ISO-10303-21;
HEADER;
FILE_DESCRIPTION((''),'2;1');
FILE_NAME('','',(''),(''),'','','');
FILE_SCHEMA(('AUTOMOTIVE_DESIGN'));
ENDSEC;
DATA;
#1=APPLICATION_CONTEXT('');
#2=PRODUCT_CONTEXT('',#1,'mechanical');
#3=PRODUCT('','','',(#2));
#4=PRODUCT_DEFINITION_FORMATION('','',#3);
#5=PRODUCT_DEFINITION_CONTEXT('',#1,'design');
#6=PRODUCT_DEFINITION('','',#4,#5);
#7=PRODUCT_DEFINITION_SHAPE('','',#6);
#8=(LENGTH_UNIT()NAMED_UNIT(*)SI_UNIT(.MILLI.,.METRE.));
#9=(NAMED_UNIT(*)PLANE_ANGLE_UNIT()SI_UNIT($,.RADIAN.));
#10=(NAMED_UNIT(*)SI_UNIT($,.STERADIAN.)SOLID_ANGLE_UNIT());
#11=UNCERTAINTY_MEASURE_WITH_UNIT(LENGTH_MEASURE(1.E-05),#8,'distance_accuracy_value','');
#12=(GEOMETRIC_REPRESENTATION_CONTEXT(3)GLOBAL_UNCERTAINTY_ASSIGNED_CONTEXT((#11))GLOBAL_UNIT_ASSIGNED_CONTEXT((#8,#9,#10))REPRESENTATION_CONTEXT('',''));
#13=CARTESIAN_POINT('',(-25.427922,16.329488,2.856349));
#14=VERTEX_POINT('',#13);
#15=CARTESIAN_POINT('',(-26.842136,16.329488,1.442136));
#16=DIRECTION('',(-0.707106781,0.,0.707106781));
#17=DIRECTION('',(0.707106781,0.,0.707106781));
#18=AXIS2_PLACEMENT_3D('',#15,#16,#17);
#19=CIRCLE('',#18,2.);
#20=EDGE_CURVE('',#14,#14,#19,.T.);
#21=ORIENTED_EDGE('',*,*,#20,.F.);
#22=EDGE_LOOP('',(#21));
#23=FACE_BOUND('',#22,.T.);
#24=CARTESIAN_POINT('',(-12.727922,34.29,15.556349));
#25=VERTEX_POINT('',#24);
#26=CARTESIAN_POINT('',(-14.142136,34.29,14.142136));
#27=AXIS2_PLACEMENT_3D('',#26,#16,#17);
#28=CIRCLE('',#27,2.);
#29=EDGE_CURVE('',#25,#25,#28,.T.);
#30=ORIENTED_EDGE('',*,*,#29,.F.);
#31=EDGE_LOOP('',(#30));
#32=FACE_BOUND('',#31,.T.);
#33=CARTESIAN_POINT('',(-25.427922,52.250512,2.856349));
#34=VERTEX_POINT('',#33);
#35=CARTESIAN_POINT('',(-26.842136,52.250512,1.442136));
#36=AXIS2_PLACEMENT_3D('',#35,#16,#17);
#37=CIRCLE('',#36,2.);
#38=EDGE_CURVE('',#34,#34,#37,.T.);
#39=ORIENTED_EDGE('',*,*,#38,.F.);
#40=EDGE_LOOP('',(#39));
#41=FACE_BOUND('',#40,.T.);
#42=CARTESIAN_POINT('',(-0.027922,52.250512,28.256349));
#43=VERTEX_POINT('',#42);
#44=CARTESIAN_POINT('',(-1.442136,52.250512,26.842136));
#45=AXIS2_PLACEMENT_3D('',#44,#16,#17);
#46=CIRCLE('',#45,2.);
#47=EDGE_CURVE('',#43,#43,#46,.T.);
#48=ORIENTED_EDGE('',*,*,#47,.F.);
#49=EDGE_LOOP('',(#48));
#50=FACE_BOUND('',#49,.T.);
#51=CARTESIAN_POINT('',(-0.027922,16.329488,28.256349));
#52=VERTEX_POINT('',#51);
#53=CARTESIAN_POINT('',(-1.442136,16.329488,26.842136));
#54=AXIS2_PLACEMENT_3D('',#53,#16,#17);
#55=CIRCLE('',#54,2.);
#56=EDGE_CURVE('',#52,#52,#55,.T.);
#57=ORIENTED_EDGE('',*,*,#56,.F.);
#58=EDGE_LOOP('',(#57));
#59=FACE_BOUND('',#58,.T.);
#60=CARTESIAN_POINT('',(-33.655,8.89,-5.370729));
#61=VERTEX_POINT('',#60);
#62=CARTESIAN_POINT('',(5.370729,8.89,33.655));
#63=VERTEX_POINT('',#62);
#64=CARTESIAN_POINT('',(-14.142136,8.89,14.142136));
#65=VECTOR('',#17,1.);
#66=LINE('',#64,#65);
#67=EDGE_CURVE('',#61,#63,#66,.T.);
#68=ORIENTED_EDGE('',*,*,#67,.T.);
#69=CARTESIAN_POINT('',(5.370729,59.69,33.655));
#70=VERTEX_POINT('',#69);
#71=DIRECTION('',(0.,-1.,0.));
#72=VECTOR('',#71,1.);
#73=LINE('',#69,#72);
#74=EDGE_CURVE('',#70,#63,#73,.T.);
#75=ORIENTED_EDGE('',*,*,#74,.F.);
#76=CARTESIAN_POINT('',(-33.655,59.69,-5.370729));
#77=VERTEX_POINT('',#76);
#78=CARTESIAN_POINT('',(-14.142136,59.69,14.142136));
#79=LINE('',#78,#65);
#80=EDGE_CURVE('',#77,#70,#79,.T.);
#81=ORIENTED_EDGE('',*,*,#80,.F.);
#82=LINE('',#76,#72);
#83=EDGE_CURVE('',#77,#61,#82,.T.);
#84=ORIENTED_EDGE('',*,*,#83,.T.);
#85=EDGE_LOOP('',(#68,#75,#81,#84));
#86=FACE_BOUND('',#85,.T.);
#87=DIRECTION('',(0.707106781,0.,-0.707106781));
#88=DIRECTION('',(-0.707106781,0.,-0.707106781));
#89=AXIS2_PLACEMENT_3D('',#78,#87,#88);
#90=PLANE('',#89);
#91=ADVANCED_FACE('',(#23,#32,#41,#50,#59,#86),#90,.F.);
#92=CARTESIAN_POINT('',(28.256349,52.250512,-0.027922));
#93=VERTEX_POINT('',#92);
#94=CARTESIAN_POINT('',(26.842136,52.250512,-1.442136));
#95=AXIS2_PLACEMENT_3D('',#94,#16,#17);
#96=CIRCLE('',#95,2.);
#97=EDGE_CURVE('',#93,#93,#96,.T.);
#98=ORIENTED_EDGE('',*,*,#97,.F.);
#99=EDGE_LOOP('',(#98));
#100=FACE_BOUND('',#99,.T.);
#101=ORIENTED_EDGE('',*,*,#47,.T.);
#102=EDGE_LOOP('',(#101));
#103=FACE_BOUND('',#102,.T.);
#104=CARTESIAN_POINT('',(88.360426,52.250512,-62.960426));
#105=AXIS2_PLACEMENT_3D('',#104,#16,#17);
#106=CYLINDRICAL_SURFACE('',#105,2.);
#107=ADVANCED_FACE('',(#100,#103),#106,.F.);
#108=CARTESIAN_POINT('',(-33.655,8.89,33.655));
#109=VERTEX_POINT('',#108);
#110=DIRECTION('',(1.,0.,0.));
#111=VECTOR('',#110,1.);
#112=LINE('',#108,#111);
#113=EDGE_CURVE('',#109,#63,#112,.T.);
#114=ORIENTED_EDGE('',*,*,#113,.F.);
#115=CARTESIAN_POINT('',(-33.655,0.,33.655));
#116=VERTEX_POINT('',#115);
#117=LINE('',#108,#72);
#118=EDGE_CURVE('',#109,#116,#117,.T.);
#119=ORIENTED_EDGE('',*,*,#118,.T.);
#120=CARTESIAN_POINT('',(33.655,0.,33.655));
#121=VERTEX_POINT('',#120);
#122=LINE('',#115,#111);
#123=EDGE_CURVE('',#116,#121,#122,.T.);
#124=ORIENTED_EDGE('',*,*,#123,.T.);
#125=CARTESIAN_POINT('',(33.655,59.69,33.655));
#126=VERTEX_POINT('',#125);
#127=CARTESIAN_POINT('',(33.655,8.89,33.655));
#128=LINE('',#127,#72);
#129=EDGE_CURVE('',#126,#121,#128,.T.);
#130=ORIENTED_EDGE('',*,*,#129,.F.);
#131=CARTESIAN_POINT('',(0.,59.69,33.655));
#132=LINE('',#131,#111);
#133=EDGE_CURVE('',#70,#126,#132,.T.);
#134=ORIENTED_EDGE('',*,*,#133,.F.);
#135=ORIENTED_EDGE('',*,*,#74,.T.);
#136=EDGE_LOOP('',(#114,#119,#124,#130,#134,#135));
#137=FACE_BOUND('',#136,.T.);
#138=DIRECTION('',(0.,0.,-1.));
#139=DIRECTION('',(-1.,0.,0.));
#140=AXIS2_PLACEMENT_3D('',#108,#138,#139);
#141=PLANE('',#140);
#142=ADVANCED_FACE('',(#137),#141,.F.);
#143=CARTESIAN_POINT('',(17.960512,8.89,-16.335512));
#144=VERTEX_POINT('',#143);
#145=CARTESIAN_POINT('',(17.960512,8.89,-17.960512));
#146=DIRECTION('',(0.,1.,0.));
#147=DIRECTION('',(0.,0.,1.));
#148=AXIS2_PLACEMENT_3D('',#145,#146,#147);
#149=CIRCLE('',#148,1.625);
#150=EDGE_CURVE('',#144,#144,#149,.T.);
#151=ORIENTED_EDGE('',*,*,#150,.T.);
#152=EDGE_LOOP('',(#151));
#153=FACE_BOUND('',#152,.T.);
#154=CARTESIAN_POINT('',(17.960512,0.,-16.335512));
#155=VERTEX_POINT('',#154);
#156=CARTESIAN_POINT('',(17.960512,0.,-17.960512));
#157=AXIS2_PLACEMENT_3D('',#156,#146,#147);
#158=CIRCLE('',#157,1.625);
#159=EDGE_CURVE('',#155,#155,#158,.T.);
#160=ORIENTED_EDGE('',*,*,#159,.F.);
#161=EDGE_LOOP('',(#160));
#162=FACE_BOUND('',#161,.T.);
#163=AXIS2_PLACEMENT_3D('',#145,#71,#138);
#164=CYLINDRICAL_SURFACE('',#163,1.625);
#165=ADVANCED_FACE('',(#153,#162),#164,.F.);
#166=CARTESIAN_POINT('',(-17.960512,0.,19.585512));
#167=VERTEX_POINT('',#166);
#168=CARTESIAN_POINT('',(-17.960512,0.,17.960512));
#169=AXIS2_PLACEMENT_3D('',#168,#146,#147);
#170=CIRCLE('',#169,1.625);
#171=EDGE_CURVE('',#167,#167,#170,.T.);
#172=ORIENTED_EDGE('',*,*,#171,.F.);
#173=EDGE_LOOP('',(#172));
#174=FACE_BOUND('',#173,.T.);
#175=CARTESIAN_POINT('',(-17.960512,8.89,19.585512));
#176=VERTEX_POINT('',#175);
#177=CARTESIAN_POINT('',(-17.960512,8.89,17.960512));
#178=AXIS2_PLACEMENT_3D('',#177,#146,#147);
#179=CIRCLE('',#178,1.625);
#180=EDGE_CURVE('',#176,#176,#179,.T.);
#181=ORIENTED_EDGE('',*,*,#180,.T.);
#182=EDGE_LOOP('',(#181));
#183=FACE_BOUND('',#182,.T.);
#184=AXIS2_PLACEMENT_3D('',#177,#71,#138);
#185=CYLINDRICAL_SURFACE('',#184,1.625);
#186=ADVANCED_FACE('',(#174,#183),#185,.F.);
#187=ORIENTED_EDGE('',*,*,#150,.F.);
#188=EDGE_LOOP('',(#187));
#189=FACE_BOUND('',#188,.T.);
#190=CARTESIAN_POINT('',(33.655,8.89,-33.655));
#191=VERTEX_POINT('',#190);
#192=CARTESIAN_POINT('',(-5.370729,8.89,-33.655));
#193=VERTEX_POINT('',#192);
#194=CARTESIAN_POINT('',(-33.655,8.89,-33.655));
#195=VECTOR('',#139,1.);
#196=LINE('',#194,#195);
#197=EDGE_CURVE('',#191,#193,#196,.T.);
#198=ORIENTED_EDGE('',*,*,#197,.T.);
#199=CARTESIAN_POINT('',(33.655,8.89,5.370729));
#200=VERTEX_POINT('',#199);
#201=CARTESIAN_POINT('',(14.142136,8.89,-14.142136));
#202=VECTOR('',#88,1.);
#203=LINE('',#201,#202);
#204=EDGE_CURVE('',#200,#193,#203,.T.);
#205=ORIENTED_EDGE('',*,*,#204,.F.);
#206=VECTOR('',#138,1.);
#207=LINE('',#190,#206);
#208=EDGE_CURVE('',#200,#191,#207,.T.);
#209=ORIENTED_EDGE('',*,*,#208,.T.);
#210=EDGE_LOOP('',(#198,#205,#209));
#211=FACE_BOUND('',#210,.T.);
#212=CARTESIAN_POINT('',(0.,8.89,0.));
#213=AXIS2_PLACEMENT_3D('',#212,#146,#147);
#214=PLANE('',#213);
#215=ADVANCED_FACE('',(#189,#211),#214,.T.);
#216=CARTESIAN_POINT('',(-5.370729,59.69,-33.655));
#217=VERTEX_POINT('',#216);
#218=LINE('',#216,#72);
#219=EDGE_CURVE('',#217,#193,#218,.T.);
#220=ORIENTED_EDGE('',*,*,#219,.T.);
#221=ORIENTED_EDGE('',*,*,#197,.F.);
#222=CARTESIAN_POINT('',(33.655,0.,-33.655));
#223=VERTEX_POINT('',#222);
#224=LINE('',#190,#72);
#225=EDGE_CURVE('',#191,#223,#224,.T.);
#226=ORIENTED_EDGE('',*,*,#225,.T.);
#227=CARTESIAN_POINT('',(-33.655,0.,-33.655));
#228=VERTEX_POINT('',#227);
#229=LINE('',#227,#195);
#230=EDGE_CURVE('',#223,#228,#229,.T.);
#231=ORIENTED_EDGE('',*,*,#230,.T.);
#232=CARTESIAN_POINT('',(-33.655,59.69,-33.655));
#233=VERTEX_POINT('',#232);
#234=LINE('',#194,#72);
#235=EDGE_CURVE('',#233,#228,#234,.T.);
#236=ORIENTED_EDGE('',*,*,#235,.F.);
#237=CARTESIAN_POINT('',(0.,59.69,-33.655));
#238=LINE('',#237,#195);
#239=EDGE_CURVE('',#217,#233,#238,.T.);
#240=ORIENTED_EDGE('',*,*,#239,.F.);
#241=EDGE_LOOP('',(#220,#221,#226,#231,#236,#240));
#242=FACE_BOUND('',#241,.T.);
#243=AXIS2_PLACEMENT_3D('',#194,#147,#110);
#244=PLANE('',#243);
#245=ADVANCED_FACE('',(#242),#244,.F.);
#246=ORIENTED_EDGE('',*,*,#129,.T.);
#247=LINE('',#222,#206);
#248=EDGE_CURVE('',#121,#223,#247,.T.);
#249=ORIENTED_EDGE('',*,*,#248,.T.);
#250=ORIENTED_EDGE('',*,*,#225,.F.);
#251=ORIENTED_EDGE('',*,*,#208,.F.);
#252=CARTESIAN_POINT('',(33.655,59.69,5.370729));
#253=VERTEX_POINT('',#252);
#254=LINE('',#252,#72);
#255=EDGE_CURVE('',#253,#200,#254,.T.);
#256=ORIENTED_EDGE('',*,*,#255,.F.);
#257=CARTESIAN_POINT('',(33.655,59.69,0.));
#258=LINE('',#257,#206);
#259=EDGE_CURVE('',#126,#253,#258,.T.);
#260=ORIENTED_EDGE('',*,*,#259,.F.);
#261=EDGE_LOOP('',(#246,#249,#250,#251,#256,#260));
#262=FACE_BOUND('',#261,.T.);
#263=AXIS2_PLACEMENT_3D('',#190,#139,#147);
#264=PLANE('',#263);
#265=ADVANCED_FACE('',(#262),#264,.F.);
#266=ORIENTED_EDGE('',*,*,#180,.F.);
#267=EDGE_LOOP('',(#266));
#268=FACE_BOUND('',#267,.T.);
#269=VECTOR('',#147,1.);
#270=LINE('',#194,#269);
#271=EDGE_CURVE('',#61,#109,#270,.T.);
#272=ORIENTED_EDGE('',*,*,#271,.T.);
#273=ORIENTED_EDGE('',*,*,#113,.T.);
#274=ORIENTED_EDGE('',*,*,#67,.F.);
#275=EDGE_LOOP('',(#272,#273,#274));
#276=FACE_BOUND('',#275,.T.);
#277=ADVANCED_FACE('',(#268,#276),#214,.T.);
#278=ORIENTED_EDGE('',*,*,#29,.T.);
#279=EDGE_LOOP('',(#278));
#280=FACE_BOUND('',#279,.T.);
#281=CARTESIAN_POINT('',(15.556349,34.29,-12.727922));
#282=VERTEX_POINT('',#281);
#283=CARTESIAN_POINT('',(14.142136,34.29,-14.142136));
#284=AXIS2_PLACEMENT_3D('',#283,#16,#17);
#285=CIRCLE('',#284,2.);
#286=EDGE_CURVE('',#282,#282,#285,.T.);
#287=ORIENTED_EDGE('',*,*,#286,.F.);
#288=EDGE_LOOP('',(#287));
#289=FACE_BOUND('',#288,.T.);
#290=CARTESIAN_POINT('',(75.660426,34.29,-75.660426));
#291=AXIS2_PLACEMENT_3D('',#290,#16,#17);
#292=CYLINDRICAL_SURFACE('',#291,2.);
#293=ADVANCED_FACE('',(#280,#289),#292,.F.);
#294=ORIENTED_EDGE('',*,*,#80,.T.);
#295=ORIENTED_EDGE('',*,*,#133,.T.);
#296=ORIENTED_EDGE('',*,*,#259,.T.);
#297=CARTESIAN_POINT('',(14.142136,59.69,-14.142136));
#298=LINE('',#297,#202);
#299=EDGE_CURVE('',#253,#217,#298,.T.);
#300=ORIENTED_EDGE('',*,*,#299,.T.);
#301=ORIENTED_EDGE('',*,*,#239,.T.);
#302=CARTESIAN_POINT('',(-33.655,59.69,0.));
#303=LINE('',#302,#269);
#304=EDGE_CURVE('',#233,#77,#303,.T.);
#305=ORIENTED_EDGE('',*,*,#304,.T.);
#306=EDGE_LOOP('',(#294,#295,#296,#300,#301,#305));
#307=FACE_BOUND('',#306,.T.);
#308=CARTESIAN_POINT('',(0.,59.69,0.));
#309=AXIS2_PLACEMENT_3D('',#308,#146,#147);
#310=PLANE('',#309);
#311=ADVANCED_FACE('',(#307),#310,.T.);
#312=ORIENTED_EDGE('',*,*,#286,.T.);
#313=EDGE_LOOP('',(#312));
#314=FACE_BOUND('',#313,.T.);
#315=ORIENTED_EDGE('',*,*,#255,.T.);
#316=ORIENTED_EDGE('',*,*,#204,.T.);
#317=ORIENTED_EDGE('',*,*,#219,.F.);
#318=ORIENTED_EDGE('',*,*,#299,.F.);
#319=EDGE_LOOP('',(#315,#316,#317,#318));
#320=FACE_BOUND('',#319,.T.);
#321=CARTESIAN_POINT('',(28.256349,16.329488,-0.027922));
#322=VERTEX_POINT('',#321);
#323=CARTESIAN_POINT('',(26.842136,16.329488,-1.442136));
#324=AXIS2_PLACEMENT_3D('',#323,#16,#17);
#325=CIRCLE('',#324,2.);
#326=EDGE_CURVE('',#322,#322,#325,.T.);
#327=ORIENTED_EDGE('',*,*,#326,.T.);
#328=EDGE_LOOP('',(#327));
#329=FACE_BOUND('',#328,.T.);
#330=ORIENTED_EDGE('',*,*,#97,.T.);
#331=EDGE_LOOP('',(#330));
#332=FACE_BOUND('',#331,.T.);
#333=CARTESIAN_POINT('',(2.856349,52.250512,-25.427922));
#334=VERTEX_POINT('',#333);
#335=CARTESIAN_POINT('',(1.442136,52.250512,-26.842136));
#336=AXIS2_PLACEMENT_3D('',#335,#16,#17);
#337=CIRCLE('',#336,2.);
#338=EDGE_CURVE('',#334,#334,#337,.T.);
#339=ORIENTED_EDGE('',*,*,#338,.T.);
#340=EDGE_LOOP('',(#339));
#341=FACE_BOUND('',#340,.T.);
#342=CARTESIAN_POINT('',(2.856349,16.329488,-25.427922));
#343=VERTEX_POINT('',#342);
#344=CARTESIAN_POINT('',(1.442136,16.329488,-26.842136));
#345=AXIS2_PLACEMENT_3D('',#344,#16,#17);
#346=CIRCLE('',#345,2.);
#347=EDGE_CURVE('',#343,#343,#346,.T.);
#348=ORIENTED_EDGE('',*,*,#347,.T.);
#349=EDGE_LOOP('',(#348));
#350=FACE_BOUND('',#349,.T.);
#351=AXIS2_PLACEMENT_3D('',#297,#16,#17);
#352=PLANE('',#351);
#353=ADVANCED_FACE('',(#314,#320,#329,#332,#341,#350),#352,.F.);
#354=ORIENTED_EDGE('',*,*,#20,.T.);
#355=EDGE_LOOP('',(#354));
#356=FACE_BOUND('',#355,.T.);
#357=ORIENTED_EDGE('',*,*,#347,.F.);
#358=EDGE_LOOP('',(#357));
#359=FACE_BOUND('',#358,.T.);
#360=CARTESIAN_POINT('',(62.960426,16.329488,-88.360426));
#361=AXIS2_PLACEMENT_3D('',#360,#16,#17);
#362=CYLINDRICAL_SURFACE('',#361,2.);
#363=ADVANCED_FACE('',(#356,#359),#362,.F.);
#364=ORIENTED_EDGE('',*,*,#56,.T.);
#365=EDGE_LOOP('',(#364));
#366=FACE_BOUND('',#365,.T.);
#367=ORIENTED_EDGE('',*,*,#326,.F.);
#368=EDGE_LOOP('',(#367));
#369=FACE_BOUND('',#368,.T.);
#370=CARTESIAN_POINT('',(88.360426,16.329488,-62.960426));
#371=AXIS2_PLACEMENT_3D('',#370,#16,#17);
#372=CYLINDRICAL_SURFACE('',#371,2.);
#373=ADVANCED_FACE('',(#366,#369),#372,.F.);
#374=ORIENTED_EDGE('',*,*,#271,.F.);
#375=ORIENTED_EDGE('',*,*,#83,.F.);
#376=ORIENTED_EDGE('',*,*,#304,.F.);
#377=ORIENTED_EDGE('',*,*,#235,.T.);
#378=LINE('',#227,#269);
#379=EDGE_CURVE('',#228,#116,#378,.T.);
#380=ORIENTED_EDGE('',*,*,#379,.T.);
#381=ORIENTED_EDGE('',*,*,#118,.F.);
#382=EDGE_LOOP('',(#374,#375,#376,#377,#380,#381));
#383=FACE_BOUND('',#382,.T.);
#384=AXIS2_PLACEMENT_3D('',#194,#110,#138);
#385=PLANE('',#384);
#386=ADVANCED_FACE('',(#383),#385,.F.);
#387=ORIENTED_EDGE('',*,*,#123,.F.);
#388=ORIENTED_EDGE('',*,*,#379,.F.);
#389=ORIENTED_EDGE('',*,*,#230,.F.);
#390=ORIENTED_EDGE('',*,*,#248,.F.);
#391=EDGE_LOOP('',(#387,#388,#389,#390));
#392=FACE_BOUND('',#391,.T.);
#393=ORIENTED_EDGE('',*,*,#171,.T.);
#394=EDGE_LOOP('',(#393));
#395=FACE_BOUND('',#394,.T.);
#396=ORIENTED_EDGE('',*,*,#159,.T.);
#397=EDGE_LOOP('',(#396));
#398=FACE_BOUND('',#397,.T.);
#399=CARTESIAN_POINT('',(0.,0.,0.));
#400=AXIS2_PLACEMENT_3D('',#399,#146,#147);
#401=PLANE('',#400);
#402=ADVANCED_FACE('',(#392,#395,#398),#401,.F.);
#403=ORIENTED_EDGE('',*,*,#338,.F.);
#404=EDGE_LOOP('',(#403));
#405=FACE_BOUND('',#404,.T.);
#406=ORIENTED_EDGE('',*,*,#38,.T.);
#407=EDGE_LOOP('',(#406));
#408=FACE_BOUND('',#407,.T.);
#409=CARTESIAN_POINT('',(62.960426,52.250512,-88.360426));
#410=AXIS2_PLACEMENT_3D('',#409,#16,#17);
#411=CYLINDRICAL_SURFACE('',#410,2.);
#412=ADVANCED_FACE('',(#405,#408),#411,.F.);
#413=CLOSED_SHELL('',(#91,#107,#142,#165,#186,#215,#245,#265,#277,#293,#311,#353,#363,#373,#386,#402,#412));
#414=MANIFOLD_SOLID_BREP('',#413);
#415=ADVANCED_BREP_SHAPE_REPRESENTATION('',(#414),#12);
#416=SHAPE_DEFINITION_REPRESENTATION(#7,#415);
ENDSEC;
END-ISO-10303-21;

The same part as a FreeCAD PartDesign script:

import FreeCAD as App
import Part
import Sketcher
Q = App.Units.Quantity


def add_polygon(sketch, points):
    """Adds a closed chain of lines whose ends are joined by coincident constraints."""
    first, n = sketch.GeometryCount, len(points)
    for a, b in zip(points, points[1:] + points[:1]):
        sketch.addGeometry(Part.LineSegment(App.Vector(*a, 0), App.Vector(*b, 0)), False)
    for i in range(n):
        sketch.addConstraint(Sketcher.Constraint("Coincident", first + i, 2, first + (i + 1) % n, 1))

doc = App.newDocument("Part")
body = doc.addObject("PartDesign::Body", "Body")

# Sketch on XZ plane
sketch1 = body.newObject("Sketcher::SketchObject", "Sketch")
sketch1.AttachmentSupport = (doc.getObject("XZ_Plane"), [""])
sketch1.MapMode = "FlatFace"
add_polygon(sketch1, [(-33.7, -33.7), (-33.7, 33.7), (33.7, 33.7), (33.7, -33.7)])  # lines 0-3
sketch1.addGeometry(Part.Circle(App.Vector(-18, 18, 0), App.Vector(0, 0, 1), 1.6), False)  # 4
sketch1.addGeometry(Part.Circle(App.Vector(18, -18, 0), App.Vector(0, 0, 1), 1.6), False)  # 5
sketch1.addConstraint([
    Sketcher.Constraint("Vertical", 0),
    Sketcher.Constraint("Horizontal", 1),
    Sketcher.Constraint("Vertical", 2),
    Sketcher.Constraint("Horizontal", 3),
    Sketcher.Constraint("Equal", 4, 5),
    Sketcher.Constraint("Symmetric", 4, 3, 5, 3, -1, 1),
    Sketcher.Constraint("Symmetric", 0, 2, 2, 2, -1, 1),
    Sketcher.Constraint("Equal", 3, 0),
    Sketcher.Constraint("DistanceX", 1, 1, 1, 2, Q("2.65 in")),
    Sketcher.Constraint("Diameter", 4, 3.25),
    Sketcher.Constraint("DistanceX", 4, 3, -1, 1, 17.960512),
    Sketcher.Constraint("DistanceY", -1, 1, 4, 3, 17.960512),
])
pad1 = body.newObject("PartDesign::Pad", "Pad")
pad1.Profile = sketch1
pad1.Length = Q("0.35 in")
pad1.Reversed = True

# Sketch on XZ plane
sketch2 = body.newObject("Sketcher::SketchObject", "Sketch001")
sketch2.AttachmentSupport = (doc.getObject("XZ_Plane"), [""])
sketch2.MapMode = "FlatFace"
sketch2.AttachmentOffset = App.Placement(App.Vector(0, 0, -0.35 * 25.4), App.Rotation())
add_polygon(sketch2, [(-34, -5), (5, 34), (34, 34), (34, 5), (-5, -34), (-34, -34)])  # lines 0-5
sketch2.addConstraint([
    Sketcher.Constraint("Horizontal", 1),
    Sketcher.Constraint("Vertical", 2),
    Sketcher.Constraint("Horizontal", 4),
    Sketcher.Constraint("Vertical", 5),
    Sketcher.Constraint("Symmetric", 0, 2, 3, 2, -1, 1),
    Sketcher.Constraint("Symmetric", 2, 2, 5, 2, -1, 1),
    Sketcher.Constraint("Equal", 4, 2),
    Sketcher.Constraint("Angle", 0, Q("45 deg")),
    Sketcher.Constraint("DistanceY", 3, 2, 0, 2, Q("2.65 in")),
    Sketcher.Constraint("DistanceX", 1, 1, 1, 2, 28.284271),
])
pad2 = body.newObject("PartDesign::Pad", "Pad001")
pad2.Profile = sketch2
pad2.Length = Q("2 in")
pad2.Reversed = True

# Sketch on an angled plane
sketch3 = body.newObject("Sketcher::SketchObject", "Sketch002")
sketch3.Placement = App.Placement(App.Vector(-14.142136, 0, 14.142136), App.Rotation(App.Vector(0.707106781, 0, 0.707106781), App.Vector(0, 0.999999999, 0), App.Vector(-0.707106781, 0, 0.707106781), "ZXY"))
sketch3.addGeometry([
    Part.Circle(App.Vector(-18, 52.3, 0), App.Vector(0, 0, 1), 2),  # 0
    Part.Circle(App.Vector(18, 16.3, 0), App.Vector(0, 0, 1), 2),  # 1
    Part.Circle(App.Vector(0, 34.3, 0), App.Vector(0, 0, 1), 2),  # 2
    Part.Circle(App.Vector(18, 52.3, 0), App.Vector(0, 0, 1), 2),  # 3
    Part.Circle(App.Vector(-18, 16.3, 0), App.Vector(0, 0, 1), 2),  # 4
], False)
sketch3.addConstraint([
    Sketcher.Constraint("Equal", 0, 1),
    Sketcher.Constraint("Equal", 1, 2),
    Sketcher.Constraint("Equal", 2, 3),
    Sketcher.Constraint("Equal", 3, 4),
    Sketcher.Constraint("Symmetric", 0, 3, 3, 3, -2),
    Sketcher.Constraint("Symmetric", 1, 3, 4, 3, -2),
    Sketcher.Constraint("PointOnObject", 2, 3, -2),
    Sketcher.Constraint("Vertical", 1, 3, 3, 3),
    Sketcher.Constraint("Diameter", 0, 4.0),
    Sketcher.Constraint("DistanceY", -1, 1, 2, 3, Q("1.35 in")),
    Sketcher.Constraint("DistanceX", 0, 3, -1, 1, 17.960512),
    Sketcher.Constraint("DistanceY", -1, 1, 0, 3, 52.250512),
    Sketcher.Constraint("DistanceY", -1, 1, 1, 3, 16.329488),
])
pocket1 = body.newObject("PartDesign::Pocket", "Pocket")
pocket1.Profile = sketch3
pocket1.Length = Q("5 in")

doc.recompute()
